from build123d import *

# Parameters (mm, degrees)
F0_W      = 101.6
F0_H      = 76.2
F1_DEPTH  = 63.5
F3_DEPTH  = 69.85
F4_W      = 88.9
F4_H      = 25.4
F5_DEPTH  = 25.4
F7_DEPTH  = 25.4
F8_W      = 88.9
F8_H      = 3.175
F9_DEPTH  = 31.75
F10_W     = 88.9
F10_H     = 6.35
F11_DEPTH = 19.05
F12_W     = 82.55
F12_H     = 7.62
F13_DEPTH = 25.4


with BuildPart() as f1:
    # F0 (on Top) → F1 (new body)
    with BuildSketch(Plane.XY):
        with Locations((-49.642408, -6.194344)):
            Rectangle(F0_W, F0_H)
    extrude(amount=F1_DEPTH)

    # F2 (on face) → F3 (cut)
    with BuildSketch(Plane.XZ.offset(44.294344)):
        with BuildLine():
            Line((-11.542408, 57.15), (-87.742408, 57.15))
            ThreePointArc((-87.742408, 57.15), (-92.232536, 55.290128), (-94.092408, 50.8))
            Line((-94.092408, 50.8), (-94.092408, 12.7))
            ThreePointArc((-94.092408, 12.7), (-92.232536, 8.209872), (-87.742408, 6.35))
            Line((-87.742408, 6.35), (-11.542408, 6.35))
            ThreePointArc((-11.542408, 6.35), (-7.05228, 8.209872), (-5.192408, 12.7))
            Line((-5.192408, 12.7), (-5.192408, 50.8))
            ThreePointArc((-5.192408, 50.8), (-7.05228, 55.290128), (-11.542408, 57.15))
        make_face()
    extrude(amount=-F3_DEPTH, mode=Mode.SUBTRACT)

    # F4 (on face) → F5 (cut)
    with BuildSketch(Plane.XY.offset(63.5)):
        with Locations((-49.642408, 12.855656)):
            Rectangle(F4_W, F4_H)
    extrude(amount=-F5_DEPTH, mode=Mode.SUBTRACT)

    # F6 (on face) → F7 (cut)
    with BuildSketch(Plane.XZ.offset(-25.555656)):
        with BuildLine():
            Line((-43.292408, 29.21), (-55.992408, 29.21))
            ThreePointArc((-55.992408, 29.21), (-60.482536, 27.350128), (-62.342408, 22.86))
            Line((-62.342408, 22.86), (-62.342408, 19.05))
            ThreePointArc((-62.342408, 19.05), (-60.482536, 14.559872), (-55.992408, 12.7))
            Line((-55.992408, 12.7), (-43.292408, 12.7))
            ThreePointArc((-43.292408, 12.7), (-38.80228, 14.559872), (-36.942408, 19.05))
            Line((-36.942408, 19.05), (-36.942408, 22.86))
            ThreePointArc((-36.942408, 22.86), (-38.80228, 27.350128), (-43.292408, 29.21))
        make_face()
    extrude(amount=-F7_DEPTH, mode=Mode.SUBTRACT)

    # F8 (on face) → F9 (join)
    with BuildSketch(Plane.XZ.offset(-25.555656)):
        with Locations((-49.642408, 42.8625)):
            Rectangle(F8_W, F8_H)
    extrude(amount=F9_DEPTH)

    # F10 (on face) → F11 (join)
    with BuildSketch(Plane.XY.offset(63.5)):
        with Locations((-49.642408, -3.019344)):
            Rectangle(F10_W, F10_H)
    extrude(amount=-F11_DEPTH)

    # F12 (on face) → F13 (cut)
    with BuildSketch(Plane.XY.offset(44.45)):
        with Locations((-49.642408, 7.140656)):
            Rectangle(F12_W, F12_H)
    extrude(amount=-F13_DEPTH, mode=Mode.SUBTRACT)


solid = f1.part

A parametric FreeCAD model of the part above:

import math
import FreeCAD as App
import Part
import Sketcher

V = App.Vector
Q = App.Units.Quantity


def add_polygon(sketch, points):
    """Adds a closed chain of lines whose ends are joined by coincident constraints."""
    first, n = sketch.GeometryCount, len(points)
    for a, b in zip(points, points[1:] + points[:1]):
        sketch.addGeometry(Part.LineSegment(App.Vector(*a, 0), App.Vector(*b, 0)), False)
    for i in range(n):
        sketch.addConstraint(Sketcher.Constraint("Coincident", first + i, 2, first + (i + 1) % n, 1))

doc = App.newDocument("Part")
params = doc.addObject("Spreadsheet::Sheet", "Params")
for row, (alias, value) in enumerate([
    ("sketch1_width", "4 in"),
    ("sketch1_height", "3 in"),
    ("pad1_length", "2.5 in"),
    ("sketch2_width", "3 in"),
    ("sketch2_radius", "0.25 in"),
    ("sketch2_height", "1.5 in"),
    ("pocket1_length", "2.75 in"),
    ("sketch3_height", "1 in"),
    ("sketch3_width", "3.5 in"),
    ("pocket2_length", "1 in"),
    ("sketch4_radius", "0.25 in"),
    ("sketch4_width", "0.5 in"),
    ("sketch4_height", "0.15 in"),
    ("pocket3_length", "1 in"),
    ("sketch5_width", "3.5 in"),
    ("sketch5_height", "0.125 in"),
    ("pad2_length", "1.25 in"),
    ("sketch6_width", "3.5 in"),
    ("sketch6_height", "0.25 in"),
    ("pad3_length", "0.75 in"),
    ("sketch7_height", "0.3 in"),
    ("sketch7_width", "3.25 in"),
    ("pocket4_length", "1 in"),
], start=1):
    params.set(f"A{row}", alias)
    params.set(f"B{row}", "=" + value)
    params.setAlias(f"B{row}", alias)

body = doc.addObject("PartDesign::Body", "Body")

sketch1 = body.newObject("Sketcher::SketchObject", "Sketch")
sketch1.AttachmentSupport = (doc.getObject("XY_Plane"), [""])
sketch1.MapMode = "FlatFace"
add_polygon(sketch1, [(-100, 32), (-100, -44), (1, -44), (1, 32)])
sketch1.addConstraint(Sketcher.Constraint("Vertical", 0))
sketch1.addConstraint(Sketcher.Constraint("Horizontal", 1))
sketch1.addConstraint(Sketcher.Constraint("Vertical", 2))
sketch1.addConstraint(Sketcher.Constraint("Horizontal", 3))
sketch1.addConstraint(Sketcher.Constraint("DistanceX", 1, 1, 1, 2, Q("4 in")))
sketch1.addConstraint(Sketcher.Constraint("DistanceY", 0, 2, 0, 1, Q("3 in")))
sketch1.addConstraint(Sketcher.Constraint("DistanceX", 0, 2, -1, 1, Q("100.442408 mm")))
sketch1.addConstraint(Sketcher.Constraint("DistanceY", 0, 2, -1, 1, Q("44.294344 mm")))
sketch1.setExpression("Constraints[8]", "Params.sketch1_width")
sketch1.setExpression("Constraints[9]", "Params.sketch1_height")
pad1 = body.newObject("PartDesign::Pad", "Pad")
pad1.Profile = sketch1
pad1.setExpression("Length", "Params.pad1_length")

sketch2 = body.newObject("Sketcher::SketchObject", "Sketch001")
sketch2.AttachmentSupport = (doc.getObject("XZ_Plane"), [""])
sketch2.MapMode = "FlatFace"
sketch2.AttachmentOffset = App.Placement(V(0, 0, 44.294344), App.Rotation())
sketch2.addGeometry(Part.LineSegment(V(-12, 57, 0), V(-88, 57, 0)), False)
sketch2.addGeometry(Part.ArcOfCircle(Part.Circle(V(-88, 51, 0), V(0, 0, 1), 6), math.radians(90), math.radians(180)), False)
sketch2.addGeometry(Part.LineSegment(V(-94, 51, 0), V(-94, 13, 0)), False)
sketch2.addGeometry(Part.ArcOfCircle(Part.Circle(V(-88, 13, 0), V(0, 0, 1), 6), math.radians(-180), math.radians(-90)), False)
sketch2.addGeometry(Part.LineSegment(V(-88, 6, 0), V(-12, 6, 0)), False)
sketch2.addGeometry(Part.ArcOfCircle(Part.Circle(V(-12, 13, 0), V(0, 0, 1), 6), math.radians(-90), math.radians(0)), False)
sketch2.addGeometry(Part.LineSegment(V(-5, 13, 0), V(-5, 51, 0)), False)
sketch2.addGeometry(Part.ArcOfCircle(Part.Circle(V(-12, 51, 0), V(0, 0, 1), 6), math.radians(0), math.radians(90)), False)
sketch2.addConstraint(Sketcher.Constraint("Tangent", 0, 2, 1, 1))
sketch2.addConstraint(Sketcher.Constraint("Tangent", 1, 2, 2, 1))
sketch2.addConstraint(Sketcher.Constraint("Tangent", 2, 2, 3, 1))
sketch2.addConstraint(Sketcher.Constraint("Tangent", 3, 2, 4, 1))
sketch2.addConstraint(Sketcher.Constraint("Tangent", 4, 2, 5, 1))
sketch2.addConstraint(Sketcher.Constraint("Tangent", 5, 2, 6, 1))
sketch2.addConstraint(Sketcher.Constraint("Tangent", 6, 2, 7, 1))
sketch2.addConstraint(Sketcher.Constraint("Tangent", 7, 2, 0, 1))
sketch2.addConstraint(Sketcher.Constraint("Horizontal", 0))
sketch2.addConstraint(Sketcher.Constraint("Vertical", 2))
sketch2.addConstraint(Sketcher.Constraint("Horizontal", 4))
sketch2.addConstraint(Sketcher.Constraint("Vertical", 6))
sketch2.addConstraint(Sketcher.Constraint("Equal", 1, 3))
sketch2.addConstraint(Sketcher.Constraint("Equal", 3, 5))
sketch2.addConstraint(Sketcher.Constraint("Equal", 5, 7))
sketch2.addConstraint(Sketcher.Constraint("DistanceX", 0, 2, 0, 1, Q("3 in")))
sketch2.addConstraint(Sketcher.Constraint("Radius", 1, Q("0.25 in")))
sketch2.addConstraint(Sketcher.Constraint("DistanceY", 2, 2, 2, 1, Q("1.5 in")))
sketch2.addConstraint(Sketcher.Constraint("DistanceY", -1, 1, 1, 3, Q("2 in")))
sketch2.addConstraint(Sketcher.Constraint("DistanceX", 5, 3, -1, 1, Q("11.542408 mm")))
sketch2.setExpression("Constraints[15]", "Params.sketch2_width")
sketch2.setExpression("Constraints[16]", "Params.sketch2_radius")
sketch2.setExpression("Constraints[17]", "Params.sketch2_height")
pocket1 = body.newObject("PartDesign::Pocket", "Pocket")
pocket1.Profile = sketch2
pocket1.setExpression("Length", "Params.pocket1_length")

sketch3 = body.newObject("Sketcher::SketchObject", "Sketch002")
sketch3.AttachmentSupport = (doc.getObject("XY_Plane"), [""])
sketch3.MapMode = "FlatFace"
sketch3.AttachmentOffset = App.Placement(V(0, 0, 2.5 * 25.4), App.Rotation())
add_polygon(sketch3, [(-94, 26), (-94, 0), (-5, 0), (-5, 26)])
sketch3.addConstraint(Sketcher.Constraint("Vertical", 0))
sketch3.addConstraint(Sketcher.Constraint("Horizontal", 1))
sketch3.addConstraint(Sketcher.Constraint("Vertical", 2))
sketch3.addConstraint(Sketcher.Constraint("Horizontal", 3))
sketch3.addConstraint(Sketcher.Constraint("DistanceY", 0, 2, 0, 1, Q("1 in")))
sketch3.addConstraint(Sketcher.Constraint("DistanceX", 1, 1, 1, 2, Q("3.5 in")))
sketch3.addConstraint(Sketcher.Constraint("DistanceX", 0, 2, -1, 1, Q("94.092408 mm")))
sketch3.addConstraint(Sketcher.Constraint("DistanceY", -1, 1, 0, 2, Q("0.155656 mm")))
sketch3.setExpression("Constraints[8]", "Params.sketch3_height")
sketch3.setExpression("Constraints[9]", "Params.sketch3_width")
pocket2 = body.newObject("PartDesign::Pocket", "Pocket001")
pocket2.Profile = sketch3
pocket2.setExpression("Length", "Params.pocket2_length")

sketch4 = body.newObject("Sketcher::SketchObject", "Sketch003")
sketch4.AttachmentSupport = (doc.getObject("XZ_Plane"), [""])
sketch4.MapMode = "FlatFace"
sketch4.AttachmentOffset = App.Placement(V(0, 0, -25.555656), App.Rotation())
sketch4.addGeometry(Part.LineSegment(V(-43.3, 29.2, 0), V(-56, 29.2, 0)), False)
sketch4.addGeometry(Part.ArcOfCircle(Part.Circle(V(-56, 22.9, 0), V(0, 0, 1), 6.4), math.radians(90), math.radians(180)), False)
sketch4.addGeometry(Part.LineSegment(V(-62.3, 22.9, 0), V(-62.3, 19.1, 0)), False)
sketch4.addGeometry(Part.ArcOfCircle(Part.Circle(V(-56, 19.1, 0), V(0, 0, 1), 6.4), math.radians(-180), math.radians(-90)), False)
sketch4.addGeometry(Part.LineSegment(V(-56, 12.7, 0), V(-43.3, 12.7, 0)), False)
sketch4.addGeometry(Part.ArcOfCircle(Part.Circle(V(-43.3, 19.1, 0), V(0, 0, 1), 6.4), math.radians(-90), math.radians(0)), False)
sketch4.addGeometry(Part.LineSegment(V(-36.9, 19.1, 0), V(-36.9, 22.9, 0)), False)
sketch4.addGeometry(Part.ArcOfCircle(Part.Circle(V(-43.3, 22.9, 0), V(0, 0, 1), 6.4), math.radians(0), math.radians(90)), False)
sketch4.addConstraint(Sketcher.Constraint("Tangent", 0, 2, 1, 1))
sketch4.addConstraint(Sketcher.Constraint("Tangent", 1, 2, 2, 1))
sketch4.addConstraint(Sketcher.Constraint("Tangent", 2, 2, 3, 1))
sketch4.addConstraint(Sketcher.Constraint("Tangent", 3, 2, 4, 1))
sketch4.addConstraint(Sketcher.Constraint("Tangent", 4, 2, 5, 1))
sketch4.addConstraint(Sketcher.Constraint("Tangent", 5, 2, 6, 1))
sketch4.addConstraint(Sketcher.Constraint("Tangent", 6, 2, 7, 1))
sketch4.addConstraint(Sketcher.Constraint("Tangent", 7, 2, 0, 1))
sketch4.addConstraint(Sketcher.Constraint("Horizontal", 0))
sketch4.addConstraint(Sketcher.Constraint("Vertical", 2))
sketch4.addConstraint(Sketcher.Constraint("Horizontal", 4))
sketch4.addConstraint(Sketcher.Constraint("Vertical", 6))
sketch4.addConstraint(Sketcher.Constraint("Equal", 1, 3))
sketch4.addConstraint(Sketcher.Constraint("Equal", 3, 5))
sketch4.addConstraint(Sketcher.Constraint("Equal", 5, 7))
sketch4.addConstraint(Sketcher.Constraint("Radius", 1, Q("0.25 in")))
sketch4.addConstraint(Sketcher.Constraint("DistanceX", 0, 2, 0, 1, Q("0.5 in")))
sketch4.addConstraint(Sketcher.Constraint("DistanceY", 2, 2, 2, 1, Q("0.15 in")))
sketch4.addConstraint(Sketcher.Constraint("DistanceY", -1, 1, 1, 3, Q("0.9 in")))
sketch4.addConstraint(Sketcher.Constraint("DistanceX", 5, 3, -1, 1, Q("43.292408 mm")))
sketch4.setExpression("Constraints[15]", "Params.sketch4_radius")
sketch4.setExpression("Constraints[16]", "Params.sketch4_width")
sketch4.setExpression("Constraints[17]", "Params.sketch4_height")
pocket3 = body.newObject("PartDesign::Pocket", "Pocket002")
pocket3.Profile = sketch4
pocket3.setExpression("Length", "Params.pocket3_length")

sketch5 = body.newObject("Sketcher::SketchObject", "Sketch004")
sketch5.AttachmentSupport = (doc.getObject("XZ_Plane"), [""])
sketch5.MapMode = "FlatFace"
sketch5.AttachmentOffset = App.Placement(V(0, 0, -25.555656), App.Rotation())
add_polygon(sketch5, [(-94.1, 44.5), (-94.1, 41.3), (-5.2, 41.3), (-5.2, 44.5)])
sketch5.addConstraint(Sketcher.Constraint("Vertical", 0))
sketch5.addConstraint(Sketcher.Constraint("Horizontal", 1))
sketch5.addConstraint(Sketcher.Constraint("Vertical", 2))
sketch5.addConstraint(Sketcher.Constraint("Horizontal", 3))
sketch5.addConstraint(Sketcher.Constraint("DistanceX", 1, 1, 1, 2, Q("3.5 in")))
sketch5.addConstraint(Sketcher.Constraint("DistanceY", 0, 2, 0, 1, Q("0.125 in")))
sketch5.addConstraint(Sketcher.Constraint("DistanceY", -1, 1, 2, 2, Q("1.75 in")))
sketch5.addConstraint(Sketcher.Constraint("DistanceX", 0, 2, -1, 1, Q("94.092408 mm")))
sketch5.setExpression("Constraints[8]", "Params.sketch5_width")
sketch5.setExpression("Constraints[9]", "Params.sketch5_height")
pad2 = body.newObject("PartDesign::Pad", "Pad001")
pad2.Profile = sketch5
pad2.setExpression("Length", "Params.pad2_length")

sketch6 = body.newObject("Sketcher::SketchObject", "Sketch005")
sketch6.AttachmentSupport = (doc.getObject("XY_Plane"), [""])
sketch6.MapMode = "FlatFace"
sketch6.AttachmentOffset = App.Placement(V(0, 0, 2.5 * 25.4), App.Rotation())
add_polygon(sketch6, [(-94, 0), (-94, -6), (-5, -6), (-5, 0)])
sketch6.addConstraint(Sketcher.Constraint("Vertical", 0))
sketch6.addConstraint(Sketcher.Constraint("Horizontal", 1))
sketch6.addConstraint(Sketcher.Constraint("Vertical", 2))
sketch6.addConstraint(Sketcher.Constraint("Horizontal", 3))
sketch6.addConstraint(Sketcher.Constraint("DistanceX", 1, 1, 1, 2, Q("3.5 in")))
sketch6.addConstraint(Sketcher.Constraint("DistanceY", 0, 2, 0, 1, Q("0.25 in")))
sketch6.addConstraint(Sketcher.Constraint("DistanceX", 0, 2, -1, 1, Q("94.092408 mm")))
sketch6.addConstraint(Sketcher.Constraint("DistanceY", 0, 2, -1, 1, Q("6.194344 mm")))
sketch6.setExpression("Constraints[8]", "Params.sketch6_width")
sketch6.setExpression("Constraints[9]", "Params.sketch6_height")
pad3 = body.newObject("PartDesign::Pad", "Pad002")
pad3.Profile = sketch6
pad3.setExpression("Length", "Params.pad3_length")
pad3.Reversed = True

sketch7 = body.newObject("Sketcher::SketchObject", "Sketch006")
sketch7.AttachmentSupport = (doc.getObject("XY_Plane"), [""])
sketch7.MapMode = "FlatFace"
sketch7.AttachmentOffset = App.Placement(V(0, 0, 1.75 * 25.4), App.Rotation())
add_polygon(sketch7, [(-91, 11), (-91, 3), (-8, 3), (-8, 11)])
sketch7.addConstraint(Sketcher.Constraint("Vertical", 0))
sketch7.addConstraint(Sketcher.Constraint("Horizontal", 1))
sketch7.addConstraint(Sketcher.Constraint("Vertical", 2))
sketch7.addConstraint(Sketcher.Constraint("Horizontal", 3))
sketch7.addConstraint(Sketcher.Constraint("DistanceY", 0, 2, 0, 1, Q("0.3 in")))
sketch7.addConstraint(Sketcher.Constraint("DistanceX", 1, 1, 1, 2, Q("3.25 in")))
sketch7.addConstraint(Sketcher.Constraint("DistanceX", 0, 2, -1, 1, Q("90.917408 mm")))
sketch7.addConstraint(Sketcher.Constraint("DistanceY", -1, 1, 0, 2, Q("3.330656 mm")))
sketch7.setExpression("Constraints[8]", "Params.sketch7_height")
sketch7.setExpression("Constraints[9]", "Params.sketch7_width")
pocket4 = body.newObject("PartDesign::Pocket", "Pocket003")
pocket4.Profile = sketch7
pocket4.setExpression("Length", "Params.pocket4_length")

doc.recompute()
